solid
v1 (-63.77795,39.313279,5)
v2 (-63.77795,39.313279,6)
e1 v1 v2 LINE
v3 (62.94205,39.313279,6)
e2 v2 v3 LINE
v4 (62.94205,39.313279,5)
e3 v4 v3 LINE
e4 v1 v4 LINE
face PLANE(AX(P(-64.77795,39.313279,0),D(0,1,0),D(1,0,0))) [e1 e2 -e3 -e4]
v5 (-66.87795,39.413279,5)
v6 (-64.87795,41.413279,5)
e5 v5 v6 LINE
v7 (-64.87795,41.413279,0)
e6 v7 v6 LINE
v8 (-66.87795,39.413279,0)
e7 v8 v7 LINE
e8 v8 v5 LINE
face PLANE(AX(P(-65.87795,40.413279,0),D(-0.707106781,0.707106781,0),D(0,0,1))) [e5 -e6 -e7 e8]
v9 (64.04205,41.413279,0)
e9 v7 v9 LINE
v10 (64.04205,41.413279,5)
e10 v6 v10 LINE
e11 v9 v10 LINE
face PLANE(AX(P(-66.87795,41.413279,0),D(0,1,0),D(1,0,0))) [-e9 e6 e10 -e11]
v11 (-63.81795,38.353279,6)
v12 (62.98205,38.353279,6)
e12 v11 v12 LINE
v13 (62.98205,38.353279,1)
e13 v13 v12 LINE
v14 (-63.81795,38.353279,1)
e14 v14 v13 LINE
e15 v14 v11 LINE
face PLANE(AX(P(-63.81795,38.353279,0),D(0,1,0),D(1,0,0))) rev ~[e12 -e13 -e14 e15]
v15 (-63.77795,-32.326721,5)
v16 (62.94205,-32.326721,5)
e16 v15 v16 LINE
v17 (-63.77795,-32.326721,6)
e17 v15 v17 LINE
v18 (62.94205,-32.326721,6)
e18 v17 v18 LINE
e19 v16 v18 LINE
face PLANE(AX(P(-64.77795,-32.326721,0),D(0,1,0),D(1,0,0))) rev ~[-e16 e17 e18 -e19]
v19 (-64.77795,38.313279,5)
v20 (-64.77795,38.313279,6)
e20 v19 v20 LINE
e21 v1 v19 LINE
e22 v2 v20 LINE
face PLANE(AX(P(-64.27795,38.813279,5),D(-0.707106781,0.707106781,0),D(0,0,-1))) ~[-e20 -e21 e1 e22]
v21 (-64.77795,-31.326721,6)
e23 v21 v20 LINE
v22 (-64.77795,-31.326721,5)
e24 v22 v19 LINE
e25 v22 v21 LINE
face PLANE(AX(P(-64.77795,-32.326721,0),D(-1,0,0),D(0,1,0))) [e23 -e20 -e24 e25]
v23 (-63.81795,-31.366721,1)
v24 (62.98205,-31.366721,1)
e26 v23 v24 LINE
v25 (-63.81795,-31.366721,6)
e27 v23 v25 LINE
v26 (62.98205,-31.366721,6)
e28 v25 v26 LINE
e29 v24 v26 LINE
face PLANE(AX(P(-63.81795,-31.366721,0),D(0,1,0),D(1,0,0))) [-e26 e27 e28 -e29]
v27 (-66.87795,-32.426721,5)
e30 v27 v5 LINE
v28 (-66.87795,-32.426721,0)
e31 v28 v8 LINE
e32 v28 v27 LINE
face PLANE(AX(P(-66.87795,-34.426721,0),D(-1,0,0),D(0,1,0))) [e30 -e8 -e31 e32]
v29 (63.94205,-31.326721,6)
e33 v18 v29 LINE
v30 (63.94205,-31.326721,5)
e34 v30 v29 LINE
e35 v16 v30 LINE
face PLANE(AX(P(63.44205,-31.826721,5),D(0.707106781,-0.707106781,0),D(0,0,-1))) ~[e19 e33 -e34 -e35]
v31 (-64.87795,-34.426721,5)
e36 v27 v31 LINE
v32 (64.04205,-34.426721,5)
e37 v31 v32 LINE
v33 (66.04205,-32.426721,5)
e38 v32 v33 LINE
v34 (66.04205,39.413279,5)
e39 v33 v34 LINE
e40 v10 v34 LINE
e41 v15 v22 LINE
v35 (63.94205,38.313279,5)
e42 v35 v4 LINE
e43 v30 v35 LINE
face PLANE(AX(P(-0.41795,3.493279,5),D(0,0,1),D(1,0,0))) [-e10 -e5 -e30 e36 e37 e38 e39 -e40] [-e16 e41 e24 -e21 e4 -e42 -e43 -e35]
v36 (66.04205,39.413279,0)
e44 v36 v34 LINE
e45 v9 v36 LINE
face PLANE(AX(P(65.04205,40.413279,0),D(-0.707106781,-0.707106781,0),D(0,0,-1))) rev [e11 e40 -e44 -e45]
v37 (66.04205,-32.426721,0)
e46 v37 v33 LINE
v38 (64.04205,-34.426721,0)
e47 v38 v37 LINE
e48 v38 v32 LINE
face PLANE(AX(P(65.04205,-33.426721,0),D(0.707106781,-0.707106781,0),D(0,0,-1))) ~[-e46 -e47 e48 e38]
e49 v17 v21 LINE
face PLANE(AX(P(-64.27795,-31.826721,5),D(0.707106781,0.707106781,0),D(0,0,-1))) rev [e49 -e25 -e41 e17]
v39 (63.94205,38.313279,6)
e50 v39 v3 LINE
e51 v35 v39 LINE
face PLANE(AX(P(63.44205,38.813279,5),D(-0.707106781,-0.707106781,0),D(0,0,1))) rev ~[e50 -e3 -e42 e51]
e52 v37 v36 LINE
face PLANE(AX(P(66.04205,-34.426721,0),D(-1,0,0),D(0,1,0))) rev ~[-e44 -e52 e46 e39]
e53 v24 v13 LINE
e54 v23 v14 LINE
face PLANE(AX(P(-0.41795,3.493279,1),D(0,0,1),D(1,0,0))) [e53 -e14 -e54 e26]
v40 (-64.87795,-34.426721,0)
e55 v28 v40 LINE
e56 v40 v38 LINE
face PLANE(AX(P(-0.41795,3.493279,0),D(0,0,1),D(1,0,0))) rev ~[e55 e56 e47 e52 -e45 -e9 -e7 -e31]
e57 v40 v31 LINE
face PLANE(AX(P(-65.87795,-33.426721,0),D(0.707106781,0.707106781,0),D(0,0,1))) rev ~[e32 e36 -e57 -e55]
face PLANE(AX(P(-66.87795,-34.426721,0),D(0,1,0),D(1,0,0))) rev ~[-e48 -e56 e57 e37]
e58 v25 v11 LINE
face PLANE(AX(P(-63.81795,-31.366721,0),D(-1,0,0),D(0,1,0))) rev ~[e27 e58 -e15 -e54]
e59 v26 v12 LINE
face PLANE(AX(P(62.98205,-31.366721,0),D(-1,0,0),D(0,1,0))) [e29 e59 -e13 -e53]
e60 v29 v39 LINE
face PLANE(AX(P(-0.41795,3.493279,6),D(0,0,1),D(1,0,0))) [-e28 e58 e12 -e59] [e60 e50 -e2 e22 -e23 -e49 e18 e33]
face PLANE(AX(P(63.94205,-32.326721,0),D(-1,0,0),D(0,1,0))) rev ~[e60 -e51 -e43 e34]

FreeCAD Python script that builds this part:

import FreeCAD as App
import Part
import Sketcher
from FreeCAD import Vector


def edges_at(feature, points):
    """Names of the edges that pass closest to the given points."""
    edges = feature.Shape.Edges
    near = lambda p: min(range(len(edges)), key=lambda i: edges[i].distToShape(Part.Vertex(*p))[0])
    return sorted({f"Edge{near(p) + 1}" for p in points})

doc = App.newDocument("Part")
params = doc.addObject("Spreadsheet::Sheet", "Params")
for row, (alias, value) in enumerate([
    ("sketch1_width", "126.8 mm"),
    ("sketch1_width2", "128.72 mm"),
    ("sketch1_height", "71.64 mm"),
    ("sketch1_height2", "69.72 mm"),
    ("pad1_length", "6 mm"),
    ("sketch2_width", "132.92 mm"),
    ("sketch2_width2", "128.72 mm"),
    ("sketch2_height", "75.84 mm"),
    ("sketch2_height2", "71.64 mm"),
    ("pad2_length", "5 mm"),
    ("sketch3_width", "126.8 mm"),
    ("sketch3_height", "69.72 mm"),
    ("pad3_length", "1 mm"),
    ("chamfer_size", "1 mm"),
    ("chamfer2_size", "2 mm"),
], start=1):
    params.set(f"A{row}", alias)
    params.set(f"B{row}", "=" + value)
    params.setAlias(f"B{row}", alias)

body = doc.addObject("PartDesign::Body", "Body")

# Sketch on XY plane
sketch1 = doc.addObject("Sketcher::SketchObject", "Sketch")
body.addObject(sketch1)
sketch1.AttachmentSupport = (doc.XY_Plane, [""])
sketch1.MapMode = "FlatFace"
sketch1.addGeometry([
    Part.LineSegment(Vector(-55, 39, 0), Vector(-55, -32, 0)),  # 0
    Part.LineSegment(Vector(-55, -32, 0), Vector(74, -32, 0)),  # 1
    Part.LineSegment(Vector(74, -32, 0), Vector(74, 39, 0)),  # 2
    Part.LineSegment(Vector(74, 39, 0), Vector(-55, 39, 0)),  # 3
    Part.LineSegment(Vector(73, -31, 0), Vector(-54, -31, 0)),  # 4
    Part.LineSegment(Vector(-54, -31, 0), Vector(-54, 38, 0)),  # 5
    Part.LineSegment(Vector(-54, 38, 0), Vector(73, 38, 0)),  # 6
    Part.LineSegment(Vector(73, 38, 0), Vector(73, -31, 0)),  # 7
], False)
sketch1.addConstraint([
    Sketcher.Constraint("Coincident", 0, 2, 1, 1),
    Sketcher.Constraint("Coincident", 1, 2, 2, 1),
    Sketcher.Constraint("Coincident", 2, 2, 3, 1),
    Sketcher.Constraint("Coincident", 3, 2, 0, 1),
    Sketcher.Constraint("Coincident", 4, 2, 5, 1),
    Sketcher.Constraint("Coincident", 5, 2, 6, 1),
    Sketcher.Constraint("Coincident", 6, 2, 7, 1),
    Sketcher.Constraint("Coincident", 7, 2, 4, 1),
    Sketcher.Constraint("Vertical", 0),
    Sketcher.Constraint("Horizontal", 1),
    Sketcher.Constraint("Vertical", 2),
    Sketcher.Constraint("Horizontal", 3),
    Sketcher.Constraint("Horizontal", 4),
    Sketcher.Constraint("Vertical", 5),
    Sketcher.Constraint("Horizontal", 6),
    Sketcher.Constraint("Vertical", 7),
    Sketcher.Constraint("DistanceX", 4, 2, 4, 1, 126.8),
    Sketcher.Constraint("DistanceX", 1, 1, 1, 2, 128.72),
    Sketcher.Constraint("DistanceY", 0, 2, 0, 1, 71.64),
    Sketcher.Constraint("DistanceY", 5, 1, 5, 2, 69.72),
    Sketcher.Constraint("DistanceX", 0, 2, 4, 2, 0.96),
    Sketcher.Constraint("DistanceY", 0, 2, 4, 2, 0.96),
    Sketcher.Constraint("DistanceX", 0, 2, -1, 1, 54.77795),
    Sketcher.Constraint("DistanceY", 0, 2, -1, 1, 32.326721),
])
sketch1.setExpression("Constraints[16]", "Params.sketch1_width")
sketch1.setExpression("Constraints[17]", "Params.sketch1_width2")
sketch1.setExpression("Constraints[18]", "Params.sketch1_height")
sketch1.setExpression("Constraints[19]", "Params.sketch1_height2")
pad1 = doc.addObject("PartDesign::Pad", "Pad")
body.addObject(pad1)
pad1.Profile = sketch1
pad1.setExpression("Length", "Params.pad1_length")

# Sketch on XY plane
sketch2 = doc.addObject("Sketcher::SketchObject", "Sketch001")
body.addObject(sketch2)
sketch2.AttachmentSupport = (doc.XY_Plane, [""])
sketch2.MapMode = "FlatFace"
sketch2.addGeometry([
    Part.LineSegment(Vector(-57, 41, 0), Vector(-57, -34, 0)),  # 0
    Part.LineSegment(Vector(-57, -34, 0), Vector(76, -34, 0)),  # 1
    Part.LineSegment(Vector(76, -34, 0), Vector(76, 41, 0)),  # 2
    Part.LineSegment(Vector(76, 41, 0), Vector(-57, 41, 0)),  # 3
    Part.LineSegment(Vector(74, -32, 0), Vector(-55, -32, 0)),  # 4
    Part.LineSegment(Vector(-55, -32, 0), Vector(-55, 39, 0)),  # 5
    Part.LineSegment(Vector(-55, 39, 0), Vector(74, 39, 0)),  # 6
    Part.LineSegment(Vector(74, 39, 0), Vector(74, -32, 0)),  # 7
], False)
sketch2.addConstraint([
    Sketcher.Constraint("Coincident", 0, 2, 1, 1),
    Sketcher.Constraint("Coincident", 1, 2, 2, 1),
    Sketcher.Constraint("Coincident", 2, 2, 3, 1),
    Sketcher.Constraint("Coincident", 3, 2, 0, 1),
    Sketcher.Constraint("Coincident", 4, 2, 5, 1),
    Sketcher.Constraint("Coincident", 5, 2, 6, 1),
    Sketcher.Constraint("Coincident", 6, 2, 7, 1),
    Sketcher.Constraint("Coincident", 7, 2, 4, 1),
    Sketcher.Constraint("Vertical", 0),
    Sketcher.Constraint("Horizontal", 1),
    Sketcher.Constraint("Vertical", 2),
    Sketcher.Constraint("Horizontal", 3),
    Sketcher.Constraint("Horizontal", 4),
    Sketcher.Constraint("Vertical", 5),
    Sketcher.Constraint("Horizontal", 6),
    Sketcher.Constraint("Vertical", 7),
    Sketcher.Constraint("DistanceX", 1, 1, 1, 2, 132.92),
    Sketcher.Constraint("DistanceX", 4, 2, 4, 1, 128.72),
    Sketcher.Constraint("DistanceY", 0, 2, 0, 1, 75.84),
    Sketcher.Constraint("DistanceY", 5, 1, 5, 2, 71.64),
    Sketcher.Constraint("DistanceX", 0, 2, 4, 2, 2.1),
    Sketcher.Constraint("DistanceY", 0, 2, 4, 2, 2.1),
    Sketcher.Constraint("DistanceX", 0, 2, -1, 1, 56.87795),
    Sketcher.Constraint("DistanceY", 0, 2, -1, 1, 34.426721),
])
sketch2.setExpression("Constraints[16]", "Params.sketch2_width")
sketch2.setExpression("Constraints[17]", "Params.sketch2_width2")
sketch2.setExpression("Constraints[18]", "Params.sketch2_height")
sketch2.setExpression("Constraints[19]", "Params.sketch2_height2")
pad2 = doc.addObject("PartDesign::Pad", "Pad001")
body.addObject(pad2)
pad2.Profile = sketch2
pad2.setExpression("Length", "Params.pad2_length")

# Sketch on XY plane
sketch3 = doc.addObject("Sketcher::SketchObject", "Sketch002")
body.addObject(sketch3)
sketch3.AttachmentSupport = (doc.XY_Plane, [""])
sketch3.MapMode = "FlatFace"
sketch3.addGeometry([
    Part.LineSegment(Vector(-54, 38, 0), Vector(-54, -31, 0)),
    Part.LineSegment(Vector(-54, -31, 0), Vector(73, -31, 0)),
    Part.LineSegment(Vector(73, -31, 0), Vector(73, 38, 0)),
    Part.LineSegment(Vector(73, 38, 0), Vector(-54, 38, 0)),
], False)
sketch3.addConstraint([
    Sketcher.Constraint("Coincident", 0, 2, 1, 1),
    Sketcher.Constraint("Coincident", 1, 2, 2, 1),
    Sketcher.Constraint("Coincident", 2, 2, 3, 1),
    Sketcher.Constraint("Coincident", 3, 2, 0, 1),
    Sketcher.Constraint("Vertical", 0),
    Sketcher.Constraint("Horizontal", 1),
    Sketcher.Constraint("Vertical", 2),
    Sketcher.Constraint("Horizontal", 3),
    Sketcher.Constraint("DistanceX", 1, 1, 1, 2, 126.8),
    Sketcher.Constraint("DistanceY", 0, 2, 0, 1, 69.72),
    Sketcher.Constraint("DistanceX", 0, 2, -1, 1, 53.81795),
    Sketcher.Constraint("DistanceY", 0, 2, -1, 1, 31.366721),
])
sketch3.setExpression("Constraints[8]", "Params.sketch3_width")
sketch3.setExpression("Constraints[9]", "Params.sketch3_height")
pad3 = doc.addObject("PartDesign::Pad", "Pad002")
body.addObject(pad3)
pad3.Profile = sketch3
pad3.setExpression("Length", "Params.pad3_length")
body2 = doc.addObject("PartDesign::Body", "Body001")
doc.recompute()

body.Placement = App.Placement(Vector(-10, 0, 0), App.Rotation(Vector(0, 0, 1), 0))
boolean = doc.addObject("PartDesign::Boolean", "Boolean")
body2.addObject(boolean)
boolean.Type = "Fuse"
boolean.addObjects([body])
doc.recompute()

chamfer = doc.addObject("PartDesign::Chamfer", "Chamfer")
body2.addObject(chamfer)
chamfer.Base = (boolean, edges_at(boolean, [
    (-64.778, -32.327, 5.5),
    (63.942, -32.327, 5.5),
    (63.942, 39.313, 5.5),
    (-64.778, 39.313, 5.5),
]))
chamfer.setExpression("Size", "Params.chamfer_size")
doc.recompute()

chamfer2 = doc.addObject("PartDesign::Chamfer", "Chamfer001")
body2.addObject(chamfer2)
chamfer2.Base = (chamfer, edges_at(chamfer, [
    (-66.878, 41.413, 2.5),
    (-66.878, -34.427, 2.5),
    (66.042, -34.427, 2.5),
    (66.042, 41.413, 2.5),
]))
chamfer2.setExpression("Size", "Params.chamfer2_size")

doc.recompute()
